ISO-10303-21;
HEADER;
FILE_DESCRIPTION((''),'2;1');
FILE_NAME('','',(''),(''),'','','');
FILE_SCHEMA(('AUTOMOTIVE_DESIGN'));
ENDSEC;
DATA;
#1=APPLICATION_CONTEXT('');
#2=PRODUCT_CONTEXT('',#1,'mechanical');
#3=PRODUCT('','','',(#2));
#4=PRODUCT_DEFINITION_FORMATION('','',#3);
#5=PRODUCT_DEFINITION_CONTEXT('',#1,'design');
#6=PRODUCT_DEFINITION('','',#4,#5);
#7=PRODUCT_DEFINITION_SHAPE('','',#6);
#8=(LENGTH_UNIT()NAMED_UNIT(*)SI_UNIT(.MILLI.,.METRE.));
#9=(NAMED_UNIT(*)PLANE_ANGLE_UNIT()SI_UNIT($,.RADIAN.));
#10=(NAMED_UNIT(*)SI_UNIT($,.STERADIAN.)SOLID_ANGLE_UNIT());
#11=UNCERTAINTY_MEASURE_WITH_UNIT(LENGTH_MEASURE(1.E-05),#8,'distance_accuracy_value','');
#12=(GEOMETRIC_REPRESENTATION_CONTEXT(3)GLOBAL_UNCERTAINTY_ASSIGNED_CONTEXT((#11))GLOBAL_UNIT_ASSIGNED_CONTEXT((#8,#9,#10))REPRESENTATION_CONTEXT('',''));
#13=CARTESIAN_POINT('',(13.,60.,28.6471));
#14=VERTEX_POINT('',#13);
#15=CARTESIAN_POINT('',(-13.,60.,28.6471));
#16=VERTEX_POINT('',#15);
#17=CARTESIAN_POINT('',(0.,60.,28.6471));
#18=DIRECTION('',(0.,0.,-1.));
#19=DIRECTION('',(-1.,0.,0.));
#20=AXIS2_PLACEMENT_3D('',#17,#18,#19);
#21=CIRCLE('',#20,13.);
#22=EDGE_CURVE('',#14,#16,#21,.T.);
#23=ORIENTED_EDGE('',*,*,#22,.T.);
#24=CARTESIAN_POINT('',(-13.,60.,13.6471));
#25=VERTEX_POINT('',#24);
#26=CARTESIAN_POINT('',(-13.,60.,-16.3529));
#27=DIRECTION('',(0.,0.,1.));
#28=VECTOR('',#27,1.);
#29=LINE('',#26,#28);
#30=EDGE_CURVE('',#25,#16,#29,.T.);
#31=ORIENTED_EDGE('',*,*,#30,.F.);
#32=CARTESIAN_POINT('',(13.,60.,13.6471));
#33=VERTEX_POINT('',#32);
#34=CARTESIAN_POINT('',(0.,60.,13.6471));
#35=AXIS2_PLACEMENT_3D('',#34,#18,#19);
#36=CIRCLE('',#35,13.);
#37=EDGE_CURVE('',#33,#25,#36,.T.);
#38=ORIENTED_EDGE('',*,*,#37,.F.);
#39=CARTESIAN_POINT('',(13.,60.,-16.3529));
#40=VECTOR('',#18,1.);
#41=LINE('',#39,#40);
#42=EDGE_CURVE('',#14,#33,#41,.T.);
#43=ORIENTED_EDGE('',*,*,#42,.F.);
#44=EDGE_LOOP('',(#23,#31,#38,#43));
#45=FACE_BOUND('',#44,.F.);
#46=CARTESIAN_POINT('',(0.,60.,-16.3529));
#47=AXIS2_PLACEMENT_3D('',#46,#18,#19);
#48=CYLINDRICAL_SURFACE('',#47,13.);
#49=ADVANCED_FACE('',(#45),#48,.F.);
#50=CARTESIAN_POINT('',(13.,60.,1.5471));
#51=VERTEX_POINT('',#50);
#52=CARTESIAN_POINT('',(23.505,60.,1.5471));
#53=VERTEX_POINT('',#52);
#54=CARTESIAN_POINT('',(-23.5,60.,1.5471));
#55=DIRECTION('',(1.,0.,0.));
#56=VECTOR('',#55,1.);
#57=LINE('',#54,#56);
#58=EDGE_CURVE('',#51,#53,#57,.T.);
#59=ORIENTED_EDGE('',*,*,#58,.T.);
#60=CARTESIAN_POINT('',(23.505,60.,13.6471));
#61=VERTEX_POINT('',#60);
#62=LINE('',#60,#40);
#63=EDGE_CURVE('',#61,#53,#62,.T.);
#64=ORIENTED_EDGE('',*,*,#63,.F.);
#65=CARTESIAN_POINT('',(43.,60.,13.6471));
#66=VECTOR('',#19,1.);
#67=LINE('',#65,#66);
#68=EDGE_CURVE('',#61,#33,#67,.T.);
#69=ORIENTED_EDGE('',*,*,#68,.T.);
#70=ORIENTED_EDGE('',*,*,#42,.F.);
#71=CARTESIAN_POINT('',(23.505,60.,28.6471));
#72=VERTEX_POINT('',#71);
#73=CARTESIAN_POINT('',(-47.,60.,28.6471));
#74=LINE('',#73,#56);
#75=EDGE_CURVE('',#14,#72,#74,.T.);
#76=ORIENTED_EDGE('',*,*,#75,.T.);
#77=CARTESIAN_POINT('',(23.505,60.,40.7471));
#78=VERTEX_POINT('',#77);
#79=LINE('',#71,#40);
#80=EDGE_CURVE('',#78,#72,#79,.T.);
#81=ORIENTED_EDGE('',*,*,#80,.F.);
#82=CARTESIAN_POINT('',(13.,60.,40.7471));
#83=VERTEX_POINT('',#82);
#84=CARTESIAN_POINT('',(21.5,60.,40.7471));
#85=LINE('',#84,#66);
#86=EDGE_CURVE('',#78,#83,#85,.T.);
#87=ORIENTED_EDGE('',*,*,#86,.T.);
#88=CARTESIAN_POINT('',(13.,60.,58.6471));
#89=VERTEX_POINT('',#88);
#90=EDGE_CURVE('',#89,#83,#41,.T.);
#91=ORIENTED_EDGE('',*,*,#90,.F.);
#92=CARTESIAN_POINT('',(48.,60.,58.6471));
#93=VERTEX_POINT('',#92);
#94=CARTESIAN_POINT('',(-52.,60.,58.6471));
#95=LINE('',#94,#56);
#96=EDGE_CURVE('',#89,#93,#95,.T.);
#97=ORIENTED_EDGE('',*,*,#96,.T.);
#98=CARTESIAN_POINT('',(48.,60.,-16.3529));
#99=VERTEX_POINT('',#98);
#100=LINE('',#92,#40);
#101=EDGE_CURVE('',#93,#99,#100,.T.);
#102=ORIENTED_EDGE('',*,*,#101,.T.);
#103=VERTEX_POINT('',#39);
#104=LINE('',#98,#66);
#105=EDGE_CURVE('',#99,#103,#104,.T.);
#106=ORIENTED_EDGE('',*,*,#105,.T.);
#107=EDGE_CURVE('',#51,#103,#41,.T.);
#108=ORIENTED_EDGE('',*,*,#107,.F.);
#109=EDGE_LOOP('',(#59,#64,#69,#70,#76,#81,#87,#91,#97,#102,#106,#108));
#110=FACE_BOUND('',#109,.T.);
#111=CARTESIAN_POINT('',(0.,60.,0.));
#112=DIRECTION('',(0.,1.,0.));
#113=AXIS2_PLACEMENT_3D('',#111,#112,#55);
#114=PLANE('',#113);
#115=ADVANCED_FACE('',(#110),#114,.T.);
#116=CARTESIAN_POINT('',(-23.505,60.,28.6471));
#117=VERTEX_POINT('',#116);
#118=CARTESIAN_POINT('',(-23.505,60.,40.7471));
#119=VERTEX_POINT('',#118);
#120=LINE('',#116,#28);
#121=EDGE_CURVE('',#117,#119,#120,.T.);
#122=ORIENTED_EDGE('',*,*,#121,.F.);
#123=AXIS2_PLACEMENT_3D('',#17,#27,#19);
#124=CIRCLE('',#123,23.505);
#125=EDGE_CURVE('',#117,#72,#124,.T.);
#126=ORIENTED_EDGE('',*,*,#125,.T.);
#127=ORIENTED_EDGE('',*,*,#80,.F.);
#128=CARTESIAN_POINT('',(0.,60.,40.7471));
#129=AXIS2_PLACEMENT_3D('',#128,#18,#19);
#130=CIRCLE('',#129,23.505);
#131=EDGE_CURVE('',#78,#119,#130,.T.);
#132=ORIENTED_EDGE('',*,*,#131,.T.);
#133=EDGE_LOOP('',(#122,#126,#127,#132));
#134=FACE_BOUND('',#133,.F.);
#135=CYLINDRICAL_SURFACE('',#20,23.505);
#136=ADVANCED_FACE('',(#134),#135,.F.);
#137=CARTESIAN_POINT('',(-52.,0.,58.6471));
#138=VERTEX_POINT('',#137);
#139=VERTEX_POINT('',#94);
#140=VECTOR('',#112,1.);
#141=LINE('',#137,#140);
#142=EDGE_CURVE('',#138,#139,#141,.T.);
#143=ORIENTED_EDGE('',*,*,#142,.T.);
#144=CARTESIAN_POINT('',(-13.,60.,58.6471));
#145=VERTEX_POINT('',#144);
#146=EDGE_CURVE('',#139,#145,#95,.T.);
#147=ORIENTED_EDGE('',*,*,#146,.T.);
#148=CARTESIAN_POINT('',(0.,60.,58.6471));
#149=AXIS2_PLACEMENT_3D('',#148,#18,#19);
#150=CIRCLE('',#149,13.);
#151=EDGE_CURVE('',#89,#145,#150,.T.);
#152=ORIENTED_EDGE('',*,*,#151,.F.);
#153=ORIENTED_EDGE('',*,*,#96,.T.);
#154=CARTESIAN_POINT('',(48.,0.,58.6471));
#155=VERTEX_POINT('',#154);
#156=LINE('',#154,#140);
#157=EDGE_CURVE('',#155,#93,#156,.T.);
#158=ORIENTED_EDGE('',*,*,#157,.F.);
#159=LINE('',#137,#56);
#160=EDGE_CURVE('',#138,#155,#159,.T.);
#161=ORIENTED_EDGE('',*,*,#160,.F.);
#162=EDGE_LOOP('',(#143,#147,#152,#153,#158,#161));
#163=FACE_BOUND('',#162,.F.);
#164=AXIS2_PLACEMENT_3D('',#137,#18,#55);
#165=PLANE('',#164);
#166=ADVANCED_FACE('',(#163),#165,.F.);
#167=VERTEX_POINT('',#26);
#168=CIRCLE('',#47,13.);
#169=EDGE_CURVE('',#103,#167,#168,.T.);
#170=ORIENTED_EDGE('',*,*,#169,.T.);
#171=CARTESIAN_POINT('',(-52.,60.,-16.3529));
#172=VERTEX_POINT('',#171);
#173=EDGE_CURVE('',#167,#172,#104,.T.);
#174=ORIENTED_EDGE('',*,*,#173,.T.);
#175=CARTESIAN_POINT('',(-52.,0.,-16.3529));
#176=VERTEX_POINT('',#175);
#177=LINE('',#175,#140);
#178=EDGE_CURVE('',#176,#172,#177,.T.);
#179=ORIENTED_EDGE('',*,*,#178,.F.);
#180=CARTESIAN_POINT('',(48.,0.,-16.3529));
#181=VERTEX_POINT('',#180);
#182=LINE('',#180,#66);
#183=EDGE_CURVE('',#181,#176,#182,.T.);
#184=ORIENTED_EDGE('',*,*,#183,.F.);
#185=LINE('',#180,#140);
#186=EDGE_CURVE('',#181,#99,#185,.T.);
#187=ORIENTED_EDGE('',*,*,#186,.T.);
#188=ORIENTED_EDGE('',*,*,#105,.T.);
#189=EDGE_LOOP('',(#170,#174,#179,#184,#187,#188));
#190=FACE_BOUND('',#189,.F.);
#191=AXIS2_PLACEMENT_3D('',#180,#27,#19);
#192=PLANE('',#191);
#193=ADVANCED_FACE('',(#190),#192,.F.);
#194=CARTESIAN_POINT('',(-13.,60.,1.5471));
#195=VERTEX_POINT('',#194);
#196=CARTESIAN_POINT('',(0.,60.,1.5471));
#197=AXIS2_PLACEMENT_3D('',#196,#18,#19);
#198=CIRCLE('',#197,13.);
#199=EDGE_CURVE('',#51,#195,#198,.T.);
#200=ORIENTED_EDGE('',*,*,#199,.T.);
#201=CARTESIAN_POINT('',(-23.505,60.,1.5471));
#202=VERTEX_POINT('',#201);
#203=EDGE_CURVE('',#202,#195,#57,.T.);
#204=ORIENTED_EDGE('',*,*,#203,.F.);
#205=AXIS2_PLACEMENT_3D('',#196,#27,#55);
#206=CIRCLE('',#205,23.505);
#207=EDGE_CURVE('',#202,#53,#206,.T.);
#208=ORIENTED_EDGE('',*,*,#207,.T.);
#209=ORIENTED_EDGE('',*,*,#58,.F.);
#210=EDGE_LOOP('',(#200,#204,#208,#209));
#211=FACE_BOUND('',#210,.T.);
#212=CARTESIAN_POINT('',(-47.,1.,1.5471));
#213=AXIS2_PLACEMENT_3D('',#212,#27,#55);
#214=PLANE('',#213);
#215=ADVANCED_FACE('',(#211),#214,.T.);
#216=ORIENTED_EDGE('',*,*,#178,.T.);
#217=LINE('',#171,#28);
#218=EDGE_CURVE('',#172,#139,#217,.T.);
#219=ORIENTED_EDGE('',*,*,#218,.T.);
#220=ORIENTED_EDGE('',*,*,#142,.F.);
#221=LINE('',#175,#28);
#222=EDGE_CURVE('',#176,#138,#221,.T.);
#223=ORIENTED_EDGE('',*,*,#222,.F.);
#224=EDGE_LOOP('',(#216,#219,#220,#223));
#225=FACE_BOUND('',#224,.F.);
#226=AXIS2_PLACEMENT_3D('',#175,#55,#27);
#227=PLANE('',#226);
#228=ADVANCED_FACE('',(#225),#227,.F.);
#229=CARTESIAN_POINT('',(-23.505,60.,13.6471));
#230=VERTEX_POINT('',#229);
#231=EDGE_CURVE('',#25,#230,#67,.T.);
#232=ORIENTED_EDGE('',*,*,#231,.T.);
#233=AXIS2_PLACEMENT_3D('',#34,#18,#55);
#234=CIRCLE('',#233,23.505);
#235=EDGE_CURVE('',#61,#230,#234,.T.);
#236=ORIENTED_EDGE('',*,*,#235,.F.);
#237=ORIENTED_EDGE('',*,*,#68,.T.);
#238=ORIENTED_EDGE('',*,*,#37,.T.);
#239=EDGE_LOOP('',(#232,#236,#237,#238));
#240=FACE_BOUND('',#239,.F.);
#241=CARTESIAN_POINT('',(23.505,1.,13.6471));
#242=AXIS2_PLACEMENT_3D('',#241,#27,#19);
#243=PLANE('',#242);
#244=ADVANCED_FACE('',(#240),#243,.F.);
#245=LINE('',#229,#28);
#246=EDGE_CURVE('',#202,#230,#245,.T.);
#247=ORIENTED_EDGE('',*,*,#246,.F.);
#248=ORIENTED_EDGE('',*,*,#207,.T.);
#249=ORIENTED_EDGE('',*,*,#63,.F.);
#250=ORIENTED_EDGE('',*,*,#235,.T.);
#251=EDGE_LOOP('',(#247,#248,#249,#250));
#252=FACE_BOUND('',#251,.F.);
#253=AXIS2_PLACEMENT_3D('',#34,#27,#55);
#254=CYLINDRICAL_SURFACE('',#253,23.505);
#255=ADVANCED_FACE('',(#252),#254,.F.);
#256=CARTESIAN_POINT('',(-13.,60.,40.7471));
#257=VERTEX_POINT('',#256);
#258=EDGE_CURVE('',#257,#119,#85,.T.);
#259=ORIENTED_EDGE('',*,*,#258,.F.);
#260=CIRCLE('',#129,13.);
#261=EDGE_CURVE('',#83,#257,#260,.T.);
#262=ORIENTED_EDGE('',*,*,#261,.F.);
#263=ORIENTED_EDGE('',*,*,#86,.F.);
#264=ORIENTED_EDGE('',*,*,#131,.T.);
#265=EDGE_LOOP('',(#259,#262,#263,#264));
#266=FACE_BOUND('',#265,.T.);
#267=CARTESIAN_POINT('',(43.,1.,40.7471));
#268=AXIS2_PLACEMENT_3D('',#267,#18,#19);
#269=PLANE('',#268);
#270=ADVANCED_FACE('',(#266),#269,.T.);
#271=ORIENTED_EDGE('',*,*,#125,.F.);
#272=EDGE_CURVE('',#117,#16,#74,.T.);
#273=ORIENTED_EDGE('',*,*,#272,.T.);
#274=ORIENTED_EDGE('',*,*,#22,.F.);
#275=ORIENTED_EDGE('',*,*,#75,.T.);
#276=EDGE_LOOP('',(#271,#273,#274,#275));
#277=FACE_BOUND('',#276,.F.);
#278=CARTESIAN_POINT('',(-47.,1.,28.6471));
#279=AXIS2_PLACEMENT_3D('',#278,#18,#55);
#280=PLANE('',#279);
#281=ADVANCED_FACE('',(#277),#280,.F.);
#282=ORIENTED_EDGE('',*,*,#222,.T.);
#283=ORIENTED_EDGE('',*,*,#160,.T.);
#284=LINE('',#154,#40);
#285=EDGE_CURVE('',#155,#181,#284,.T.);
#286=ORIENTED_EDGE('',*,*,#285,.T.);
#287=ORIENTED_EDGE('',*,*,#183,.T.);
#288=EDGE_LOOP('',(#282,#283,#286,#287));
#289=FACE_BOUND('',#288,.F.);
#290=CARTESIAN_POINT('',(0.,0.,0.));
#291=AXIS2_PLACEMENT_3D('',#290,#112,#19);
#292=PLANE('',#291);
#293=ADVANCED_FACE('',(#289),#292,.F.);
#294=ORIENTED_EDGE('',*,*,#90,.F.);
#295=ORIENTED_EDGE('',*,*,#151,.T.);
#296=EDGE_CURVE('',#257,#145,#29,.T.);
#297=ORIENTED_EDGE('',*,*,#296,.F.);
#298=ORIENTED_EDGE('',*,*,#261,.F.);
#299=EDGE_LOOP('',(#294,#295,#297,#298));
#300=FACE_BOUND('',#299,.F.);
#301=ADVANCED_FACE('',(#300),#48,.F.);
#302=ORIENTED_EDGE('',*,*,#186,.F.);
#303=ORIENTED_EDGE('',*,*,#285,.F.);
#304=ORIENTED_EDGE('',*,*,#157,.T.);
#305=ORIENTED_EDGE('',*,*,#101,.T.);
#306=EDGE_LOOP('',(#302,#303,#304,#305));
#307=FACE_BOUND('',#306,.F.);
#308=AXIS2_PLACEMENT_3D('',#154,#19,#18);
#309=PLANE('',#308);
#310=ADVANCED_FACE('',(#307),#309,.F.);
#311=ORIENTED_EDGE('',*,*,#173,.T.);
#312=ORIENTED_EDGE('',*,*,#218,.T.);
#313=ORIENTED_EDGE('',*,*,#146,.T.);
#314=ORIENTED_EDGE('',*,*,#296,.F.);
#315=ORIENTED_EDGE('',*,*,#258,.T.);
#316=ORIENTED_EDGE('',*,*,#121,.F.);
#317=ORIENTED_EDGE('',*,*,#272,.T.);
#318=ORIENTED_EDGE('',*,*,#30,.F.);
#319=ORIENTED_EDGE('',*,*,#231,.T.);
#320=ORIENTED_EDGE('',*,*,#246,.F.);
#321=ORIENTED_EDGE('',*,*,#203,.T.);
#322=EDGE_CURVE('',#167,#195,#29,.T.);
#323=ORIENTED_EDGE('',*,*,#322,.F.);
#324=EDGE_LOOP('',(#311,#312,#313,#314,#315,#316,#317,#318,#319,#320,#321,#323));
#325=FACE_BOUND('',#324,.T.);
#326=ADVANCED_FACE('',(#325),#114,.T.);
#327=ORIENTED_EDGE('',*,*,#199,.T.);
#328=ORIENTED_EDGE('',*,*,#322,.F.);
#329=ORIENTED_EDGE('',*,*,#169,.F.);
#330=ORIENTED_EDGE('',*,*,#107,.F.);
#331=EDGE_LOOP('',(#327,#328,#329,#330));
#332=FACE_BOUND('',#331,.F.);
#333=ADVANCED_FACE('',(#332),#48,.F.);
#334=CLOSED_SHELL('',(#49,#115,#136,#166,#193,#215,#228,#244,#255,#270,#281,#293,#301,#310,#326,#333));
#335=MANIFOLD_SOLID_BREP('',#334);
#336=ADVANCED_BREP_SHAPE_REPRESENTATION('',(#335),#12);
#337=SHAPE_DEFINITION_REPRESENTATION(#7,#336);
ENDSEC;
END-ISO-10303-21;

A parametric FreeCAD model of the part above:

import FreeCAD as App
import Part
import Sketcher

V = App.Vector
Q = App.Units.Quantity

doc = App.newDocument("Part")
body = doc.addObject("PartDesign::Body", "Body")

sketch1 = body.newObject("Sketcher::SketchObject", "Sketch")
sketch1.AttachmentSupport = (doc.getObject("XZ_Plane"), [""])
sketch1.MapMode = "FlatFace"
sketch1.addGeometry(Part.LineSegment(V(-52, -16, 0), V(-52, 59, 0)), False)
sketch1.addGeometry(Part.LineSegment(V(-52, 59, 0), V(48, 59, 0)), False)
sketch1.addGeometry(Part.LineSegment(V(48, 59, 0), V(48, -16, 0)), False)
sketch1.addGeometry(Part.LineSegment(V(48, -16, 0), V(-52, -16, 0)), False)
sketch1.addConstraint(Sketcher.Constraint("Coincident", 0, 2, 1, 1))
sketch1.addConstraint(Sketcher.Constraint("Coincident", 1, 2, 2, 1))
sketch1.addConstraint(Sketcher.Constraint("Coincident", 2, 2, 3, 1))
sketch1.addConstraint(Sketcher.Constraint("Coincident", 3, 2, 0, 1))
sketch1.addConstraint(Sketcher.Constraint("Vertical", 0))
sketch1.addConstraint(Sketcher.Constraint("Horizontal", 1))
sketch1.addConstraint(Sketcher.Constraint("Vertical", 2))
sketch1.addConstraint(Sketcher.Constraint("Horizontal", 3))
sketch1.addConstraint(Sketcher.Constraint("DistanceX", 1, 1, 1, 2, Q("100 mm")))
sketch1.addConstraint(Sketcher.Constraint("DistanceY", 0, 1, 0, 2, Q("75 mm")))
sketch1.addConstraint(Sketcher.Constraint("DistanceX", 0, 2, -1, 1, Q("52 mm")))
sketch1.addConstraint(Sketcher.Constraint("DistanceY", -1, 1, 0, 2, Q("58.647 mm")))
pad1 = body.newObject("PartDesign::Pad", "Pad")
pad1.Profile = sketch1
pad1.Length = 60
pad1.Reversed = True

sketch2 = body.newObject("Sketcher::SketchObject", "Sketch001")
sketch2.AttachmentSupport = (doc.getObject("XZ_Plane"), [""])
sketch2.MapMode = "FlatFace"
sketch2.AttachmentOffset = App.Placement(V(0, 0, -60), App.Rotation())
sketch2.addGeometry(Part.LineSegment(V(-47, -11, 0), V(-47, 54, 0)), False)
sketch2.addGeometry(Part.LineSegment(V(-47, 54, 0), V(43, 54, 0)), False)
sketch2.addGeometry(Part.LineSegment(V(43, 54, 0), V(43, -11, 0)), False)
sketch2.addGeometry(Part.LineSegment(V(43, -11, 0), V(-47, -11, 0)), False)
sketch2.addConstraint(Sketcher.Constraint("Coincident", 0, 2, 1, 1))
sketch2.addConstraint(Sketcher.Constraint("Coincident", 1, 2, 2, 1))
sketch2.addConstraint(Sketcher.Constraint("Coincident", 2, 2, 3, 1))
sketch2.addConstraint(Sketcher.Constraint("Coincident", 3, 2, 0, 1))
sketch2.addConstraint(Sketcher.Constraint("Vertical", 0))
sketch2.addConstraint(Sketcher.Constraint("Horizontal", 1))
sketch2.addConstraint(Sketcher.Constraint("Vertical", 2))
sketch2.addConstraint(Sketcher.Constraint("Horizontal", 3))
sketch2.addConstraint(Sketcher.Constraint("DistanceX", 1, 1, 1, 2, Q("90 mm")))
sketch2.addConstraint(Sketcher.Constraint("DistanceY", 0, 1, 0, 2, Q("65 mm")))
sketch2.addConstraint(Sketcher.Constraint("DistanceX", 0, 2, -1, 1, Q("47 mm")))
sketch2.addConstraint(Sketcher.Constraint("DistanceY", -1, 1, 0, 2, Q("53.647 mm")))
pocket1 = body.newObject("PartDesign::Pocket", "Pocket")
pocket1.Profile = sketch2
pocket1.Length = 59
pocket1.Reversed = True

sketch3 = body.newObject("Sketcher::SketchObject", "Sketch002")
sketch3.AttachmentSupport = (doc.getObject("XZ_Plane"), [""])
sketch3.MapMode = "FlatFace"
sketch3.AttachmentOffset = App.Placement(V(0, 0, -1), App.Rotation())
sketch3.addGeometry(Part.LineSegment(V(-47, -11, 0), V(-47, 14, 0)), False)
sketch3.addGeometry(Part.LineSegment(V(-47, 14, 0), V(43, 14, 0)), False)
sketch3.addGeometry(Part.LineSegment(V(43, 14, 0), V(43, -11, 0)), False)
sketch3.addGeometry(Part.LineSegment(V(43, -11, 0), V(-47, -11, 0)), False)
sketch3.addConstraint(Sketcher.Constraint("Coincident", 0, 2, 1, 1))
sketch3.addConstraint(Sketcher.Constraint("Coincident", 1, 2, 2, 1))
sketch3.addConstraint(Sketcher.Constraint("Coincident", 2, 2, 3, 1))
sketch3.addConstraint(Sketcher.Constraint("Coincident", 3, 2, 0, 1))
sketch3.addConstraint(Sketcher.Constraint("Vertical", 0))
sketch3.addConstraint(Sketcher.Constraint("Horizontal", 1))
sketch3.addConstraint(Sketcher.Constraint("Vertical", 2))
sketch3.addConstraint(Sketcher.Constraint("Horizontal", 3))
sketch3.addConstraint(Sketcher.Constraint("DistanceY", 0, 1, 0, 2, Q("25 mm")))
sketch3.addConstraint(Sketcher.Constraint("DistanceX", 1, 1, 1, 2, Q("90 mm")))
sketch3.addConstraint(Sketcher.Constraint("DistanceX", 0, 2, -1, 1, Q("47 mm")))
sketch3.addConstraint(Sketcher.Constraint("DistanceY", -1, 1, 0, 2, Q("13.647 mm")))
pad2 = body.newObject("PartDesign::Pad", "Pad001")
pad2.Profile = sketch3
pad2.Length = 59
pad2.Reversed = True

sketch4 = body.newObject("Sketcher::SketchObject", "Sketch003")
sketch4.AttachmentSupport = (doc.getObject("XY_Plane"), [""])
sketch4.MapMode = "FlatFace"
sketch4.AttachmentOffset = App.Placement(V(0, 0, 13.6471), App.Rotation())
sketch4.addGeometry(Part.Circle(V(0, 60, 0), V(0, 0, 1), 24), False)
sketch4.addConstraint(Sketcher.Constraint("PointOnObject", 0, 3, -2))
sketch4.addConstraint(Sketcher.Constraint("Diameter", 0, Q("47.01 mm")))
sketch4.addConstraint(Sketcher.Constraint("DistanceY", -1, 1, 0, 3, Q("60 mm")))
pocket2 = body.newObject("PartDesign::Pocket", "Pocket001")
pocket2.Profile = sketch4
pocket2.Length = 12.1

sketch5 = body.newObject("Sketcher::SketchObject", "Sketch004")
sketch5.AttachmentSupport = (doc.getObject("XZ_Plane"), [""])
sketch5.MapMode = "FlatFace"
sketch5.AttachmentOffset = App.Placement(V(0, 0, -1), App.Rotation())
sketch5.addGeometry(Part.LineSegment(V(-47, 29, 0), V(-47, 54, 0)), False)
sketch5.addGeometry(Part.LineSegment(V(-47, 54, 0), V(43, 54, 0)), False)
sketch5.addGeometry(Part.LineSegment(V(43, 54, 0), V(43, 29, 0)), False)
sketch5.addGeometry(Part.LineSegment(V(43, 29, 0), V(-47, 29, 0)), False)
sketch5.addConstraint(Sketcher.Constraint("Coincident", 0, 2, 1, 1))
sketch5.addConstraint(Sketcher.Constraint("Coincident", 1, 2, 2, 1))
sketch5.addConstraint(Sketcher.Constraint("Coincident", 2, 2, 3, 1))
sketch5.addConstraint(Sketcher.Constraint("Coincident", 3, 2, 0, 1))
sketch5.addConstraint(Sketcher.Constraint("Vertical", 0))
sketch5.addConstraint(Sketcher.Constraint("Horizontal", 1))
sketch5.addConstraint(Sketcher.Constraint("Vertical", 2))
sketch5.addConstraint(Sketcher.Constraint("Horizontal", 3))
sketch5.addConstraint(Sketcher.Constraint("DistanceY", 0, 1, 0, 2, Q("25 mm")))
sketch5.addConstraint(Sketcher.Constraint("DistanceX", 1, 1, 1, 2, Q("90 mm")))
sketch5.addConstraint(Sketcher.Constraint("DistanceX", 0, 2, -1, 1, Q("47 mm")))
sketch5.addConstraint(Sketcher.Constraint("DistanceY", -1, 1, 0, 2, Q("53.647 mm")))
pad3 = body.newObject("PartDesign::Pad", "Pad002")
pad3.Profile = sketch5
pad3.Length = 59
pad3.Reversed = True

sketch6 = body.newObject("Sketcher::SketchObject", "Sketch005")
sketch6.AttachmentSupport = (doc.getObject("XY_Plane"), [""])
sketch6.MapMode = "FlatFace"
sketch6.AttachmentOffset = App.Placement(V(0, 0, 28.6471), App.Rotation())
sketch6.addGeometry(Part.Circle(V(0, 60, 0), V(0, 0, 1), 24), False)
sketch6.addConstraint(Sketcher.Constraint("PointOnObject", 0, 3, -2))
sketch6.addConstraint(Sketcher.Constraint("Diameter", 0, Q("47.01 mm")))
sketch6.addConstraint(Sketcher.Constraint("DistanceY", -1, 1, 0, 3, Q("60 mm")))
pocket3 = body.newObject("PartDesign::Pocket", "Pocket002")
pocket3.Profile = sketch6
pocket3.Length = 12.1
pocket3.Reversed = True

sketch7 = body.newObject("Sketcher::SketchObject", "Sketch006")
sketch7.AttachmentSupport = (doc.getObject("XZ_Plane"), [""])
sketch7.MapMode = "FlatFace"
sketch7.AttachmentOffset = App.Placement(V(0, 0, -1), App.Rotation())
sketch7.addGeometry(Part.LineSegment(V(43, 14, 0), V(-47, 14, 0)), False)
sketch7.addGeometry(Part.LineSegment(V(-47, 14, 0), V(-47, 29, 0)), False)
sketch7.addGeometry(Part.LineSegment(V(-47, 29, 0), V(43, 29, 0)), False)
sketch7.addGeometry(Part.LineSegment(V(43, 29, 0), V(43, 14, 0)), False)
sketch7.addConstraint(Sketcher.Constraint("Coincident", 0, 2, 1, 1))
sketch7.addConstraint(Sketcher.Constraint("Coincident", 1, 2, 2, 1))
sketch7.addConstraint(Sketcher.Constraint("Coincident", 2, 2, 3, 1))
sketch7.addConstraint(Sketcher.Constraint("Coincident", 3, 2, 0, 1))
sketch7.addConstraint(Sketcher.Constraint("Horizontal", 0))
sketch7.addConstraint(Sketcher.Constraint("Vertical", 1))
sketch7.addConstraint(Sketcher.Constraint("Horizontal", 2))
sketch7.addConstraint(Sketcher.Constraint("Vertical", 3))
sketch7.addConstraint(Sketcher.Constraint("DistanceX", 0, 2, 0, 1, Q("90 mm")))
sketch7.addConstraint(Sketcher.Constraint("DistanceY", 1, 1, 1, 2, Q("15 mm")))
sketch7.addConstraint(Sketcher.Constraint("DistanceX", 0, 2, -1, 1, Q("47 mm")))
sketch7.addConstraint(Sketcher.Constraint("DistanceY", -1, 1, 0, 2, Q("13.647 mm")))
pad4 = body.newObject("PartDesign::Pad", "Pad003")
pad4.Profile = sketch7
pad4.Length = 59
pad4.Reversed = True

sketch8 = body.newObject("Sketcher::SketchObject", "Sketch007")
sketch8.AttachmentSupport = (doc.getObject("XY_Plane"), [""])
sketch8.MapMode = "FlatFace"
sketch8.AttachmentOffset = App.Placement(V(0, 0, -16.3529), App.Rotation())
sketch8.addGeometry(Part.Circle(V(0, 60, 0), V(0, 0, 1), 13), False)
sketch8.addConstraint(Sketcher.Constraint("PointOnObject", 0, 3, -2))
sketch8.addConstraint(Sketcher.Constraint("Diameter", 0, Q("26 mm")))
sketch8.addConstraint(Sketcher.Constraint("DistanceY", -1, 1, 0, 3, Q("60 mm")))
pocket4 = body.newObject("PartDesign::Pocket", "Pocket003")
pocket4.Profile = sketch8
pocket4.Length = 75
pocket4.Reversed = True

doc.recompute()
